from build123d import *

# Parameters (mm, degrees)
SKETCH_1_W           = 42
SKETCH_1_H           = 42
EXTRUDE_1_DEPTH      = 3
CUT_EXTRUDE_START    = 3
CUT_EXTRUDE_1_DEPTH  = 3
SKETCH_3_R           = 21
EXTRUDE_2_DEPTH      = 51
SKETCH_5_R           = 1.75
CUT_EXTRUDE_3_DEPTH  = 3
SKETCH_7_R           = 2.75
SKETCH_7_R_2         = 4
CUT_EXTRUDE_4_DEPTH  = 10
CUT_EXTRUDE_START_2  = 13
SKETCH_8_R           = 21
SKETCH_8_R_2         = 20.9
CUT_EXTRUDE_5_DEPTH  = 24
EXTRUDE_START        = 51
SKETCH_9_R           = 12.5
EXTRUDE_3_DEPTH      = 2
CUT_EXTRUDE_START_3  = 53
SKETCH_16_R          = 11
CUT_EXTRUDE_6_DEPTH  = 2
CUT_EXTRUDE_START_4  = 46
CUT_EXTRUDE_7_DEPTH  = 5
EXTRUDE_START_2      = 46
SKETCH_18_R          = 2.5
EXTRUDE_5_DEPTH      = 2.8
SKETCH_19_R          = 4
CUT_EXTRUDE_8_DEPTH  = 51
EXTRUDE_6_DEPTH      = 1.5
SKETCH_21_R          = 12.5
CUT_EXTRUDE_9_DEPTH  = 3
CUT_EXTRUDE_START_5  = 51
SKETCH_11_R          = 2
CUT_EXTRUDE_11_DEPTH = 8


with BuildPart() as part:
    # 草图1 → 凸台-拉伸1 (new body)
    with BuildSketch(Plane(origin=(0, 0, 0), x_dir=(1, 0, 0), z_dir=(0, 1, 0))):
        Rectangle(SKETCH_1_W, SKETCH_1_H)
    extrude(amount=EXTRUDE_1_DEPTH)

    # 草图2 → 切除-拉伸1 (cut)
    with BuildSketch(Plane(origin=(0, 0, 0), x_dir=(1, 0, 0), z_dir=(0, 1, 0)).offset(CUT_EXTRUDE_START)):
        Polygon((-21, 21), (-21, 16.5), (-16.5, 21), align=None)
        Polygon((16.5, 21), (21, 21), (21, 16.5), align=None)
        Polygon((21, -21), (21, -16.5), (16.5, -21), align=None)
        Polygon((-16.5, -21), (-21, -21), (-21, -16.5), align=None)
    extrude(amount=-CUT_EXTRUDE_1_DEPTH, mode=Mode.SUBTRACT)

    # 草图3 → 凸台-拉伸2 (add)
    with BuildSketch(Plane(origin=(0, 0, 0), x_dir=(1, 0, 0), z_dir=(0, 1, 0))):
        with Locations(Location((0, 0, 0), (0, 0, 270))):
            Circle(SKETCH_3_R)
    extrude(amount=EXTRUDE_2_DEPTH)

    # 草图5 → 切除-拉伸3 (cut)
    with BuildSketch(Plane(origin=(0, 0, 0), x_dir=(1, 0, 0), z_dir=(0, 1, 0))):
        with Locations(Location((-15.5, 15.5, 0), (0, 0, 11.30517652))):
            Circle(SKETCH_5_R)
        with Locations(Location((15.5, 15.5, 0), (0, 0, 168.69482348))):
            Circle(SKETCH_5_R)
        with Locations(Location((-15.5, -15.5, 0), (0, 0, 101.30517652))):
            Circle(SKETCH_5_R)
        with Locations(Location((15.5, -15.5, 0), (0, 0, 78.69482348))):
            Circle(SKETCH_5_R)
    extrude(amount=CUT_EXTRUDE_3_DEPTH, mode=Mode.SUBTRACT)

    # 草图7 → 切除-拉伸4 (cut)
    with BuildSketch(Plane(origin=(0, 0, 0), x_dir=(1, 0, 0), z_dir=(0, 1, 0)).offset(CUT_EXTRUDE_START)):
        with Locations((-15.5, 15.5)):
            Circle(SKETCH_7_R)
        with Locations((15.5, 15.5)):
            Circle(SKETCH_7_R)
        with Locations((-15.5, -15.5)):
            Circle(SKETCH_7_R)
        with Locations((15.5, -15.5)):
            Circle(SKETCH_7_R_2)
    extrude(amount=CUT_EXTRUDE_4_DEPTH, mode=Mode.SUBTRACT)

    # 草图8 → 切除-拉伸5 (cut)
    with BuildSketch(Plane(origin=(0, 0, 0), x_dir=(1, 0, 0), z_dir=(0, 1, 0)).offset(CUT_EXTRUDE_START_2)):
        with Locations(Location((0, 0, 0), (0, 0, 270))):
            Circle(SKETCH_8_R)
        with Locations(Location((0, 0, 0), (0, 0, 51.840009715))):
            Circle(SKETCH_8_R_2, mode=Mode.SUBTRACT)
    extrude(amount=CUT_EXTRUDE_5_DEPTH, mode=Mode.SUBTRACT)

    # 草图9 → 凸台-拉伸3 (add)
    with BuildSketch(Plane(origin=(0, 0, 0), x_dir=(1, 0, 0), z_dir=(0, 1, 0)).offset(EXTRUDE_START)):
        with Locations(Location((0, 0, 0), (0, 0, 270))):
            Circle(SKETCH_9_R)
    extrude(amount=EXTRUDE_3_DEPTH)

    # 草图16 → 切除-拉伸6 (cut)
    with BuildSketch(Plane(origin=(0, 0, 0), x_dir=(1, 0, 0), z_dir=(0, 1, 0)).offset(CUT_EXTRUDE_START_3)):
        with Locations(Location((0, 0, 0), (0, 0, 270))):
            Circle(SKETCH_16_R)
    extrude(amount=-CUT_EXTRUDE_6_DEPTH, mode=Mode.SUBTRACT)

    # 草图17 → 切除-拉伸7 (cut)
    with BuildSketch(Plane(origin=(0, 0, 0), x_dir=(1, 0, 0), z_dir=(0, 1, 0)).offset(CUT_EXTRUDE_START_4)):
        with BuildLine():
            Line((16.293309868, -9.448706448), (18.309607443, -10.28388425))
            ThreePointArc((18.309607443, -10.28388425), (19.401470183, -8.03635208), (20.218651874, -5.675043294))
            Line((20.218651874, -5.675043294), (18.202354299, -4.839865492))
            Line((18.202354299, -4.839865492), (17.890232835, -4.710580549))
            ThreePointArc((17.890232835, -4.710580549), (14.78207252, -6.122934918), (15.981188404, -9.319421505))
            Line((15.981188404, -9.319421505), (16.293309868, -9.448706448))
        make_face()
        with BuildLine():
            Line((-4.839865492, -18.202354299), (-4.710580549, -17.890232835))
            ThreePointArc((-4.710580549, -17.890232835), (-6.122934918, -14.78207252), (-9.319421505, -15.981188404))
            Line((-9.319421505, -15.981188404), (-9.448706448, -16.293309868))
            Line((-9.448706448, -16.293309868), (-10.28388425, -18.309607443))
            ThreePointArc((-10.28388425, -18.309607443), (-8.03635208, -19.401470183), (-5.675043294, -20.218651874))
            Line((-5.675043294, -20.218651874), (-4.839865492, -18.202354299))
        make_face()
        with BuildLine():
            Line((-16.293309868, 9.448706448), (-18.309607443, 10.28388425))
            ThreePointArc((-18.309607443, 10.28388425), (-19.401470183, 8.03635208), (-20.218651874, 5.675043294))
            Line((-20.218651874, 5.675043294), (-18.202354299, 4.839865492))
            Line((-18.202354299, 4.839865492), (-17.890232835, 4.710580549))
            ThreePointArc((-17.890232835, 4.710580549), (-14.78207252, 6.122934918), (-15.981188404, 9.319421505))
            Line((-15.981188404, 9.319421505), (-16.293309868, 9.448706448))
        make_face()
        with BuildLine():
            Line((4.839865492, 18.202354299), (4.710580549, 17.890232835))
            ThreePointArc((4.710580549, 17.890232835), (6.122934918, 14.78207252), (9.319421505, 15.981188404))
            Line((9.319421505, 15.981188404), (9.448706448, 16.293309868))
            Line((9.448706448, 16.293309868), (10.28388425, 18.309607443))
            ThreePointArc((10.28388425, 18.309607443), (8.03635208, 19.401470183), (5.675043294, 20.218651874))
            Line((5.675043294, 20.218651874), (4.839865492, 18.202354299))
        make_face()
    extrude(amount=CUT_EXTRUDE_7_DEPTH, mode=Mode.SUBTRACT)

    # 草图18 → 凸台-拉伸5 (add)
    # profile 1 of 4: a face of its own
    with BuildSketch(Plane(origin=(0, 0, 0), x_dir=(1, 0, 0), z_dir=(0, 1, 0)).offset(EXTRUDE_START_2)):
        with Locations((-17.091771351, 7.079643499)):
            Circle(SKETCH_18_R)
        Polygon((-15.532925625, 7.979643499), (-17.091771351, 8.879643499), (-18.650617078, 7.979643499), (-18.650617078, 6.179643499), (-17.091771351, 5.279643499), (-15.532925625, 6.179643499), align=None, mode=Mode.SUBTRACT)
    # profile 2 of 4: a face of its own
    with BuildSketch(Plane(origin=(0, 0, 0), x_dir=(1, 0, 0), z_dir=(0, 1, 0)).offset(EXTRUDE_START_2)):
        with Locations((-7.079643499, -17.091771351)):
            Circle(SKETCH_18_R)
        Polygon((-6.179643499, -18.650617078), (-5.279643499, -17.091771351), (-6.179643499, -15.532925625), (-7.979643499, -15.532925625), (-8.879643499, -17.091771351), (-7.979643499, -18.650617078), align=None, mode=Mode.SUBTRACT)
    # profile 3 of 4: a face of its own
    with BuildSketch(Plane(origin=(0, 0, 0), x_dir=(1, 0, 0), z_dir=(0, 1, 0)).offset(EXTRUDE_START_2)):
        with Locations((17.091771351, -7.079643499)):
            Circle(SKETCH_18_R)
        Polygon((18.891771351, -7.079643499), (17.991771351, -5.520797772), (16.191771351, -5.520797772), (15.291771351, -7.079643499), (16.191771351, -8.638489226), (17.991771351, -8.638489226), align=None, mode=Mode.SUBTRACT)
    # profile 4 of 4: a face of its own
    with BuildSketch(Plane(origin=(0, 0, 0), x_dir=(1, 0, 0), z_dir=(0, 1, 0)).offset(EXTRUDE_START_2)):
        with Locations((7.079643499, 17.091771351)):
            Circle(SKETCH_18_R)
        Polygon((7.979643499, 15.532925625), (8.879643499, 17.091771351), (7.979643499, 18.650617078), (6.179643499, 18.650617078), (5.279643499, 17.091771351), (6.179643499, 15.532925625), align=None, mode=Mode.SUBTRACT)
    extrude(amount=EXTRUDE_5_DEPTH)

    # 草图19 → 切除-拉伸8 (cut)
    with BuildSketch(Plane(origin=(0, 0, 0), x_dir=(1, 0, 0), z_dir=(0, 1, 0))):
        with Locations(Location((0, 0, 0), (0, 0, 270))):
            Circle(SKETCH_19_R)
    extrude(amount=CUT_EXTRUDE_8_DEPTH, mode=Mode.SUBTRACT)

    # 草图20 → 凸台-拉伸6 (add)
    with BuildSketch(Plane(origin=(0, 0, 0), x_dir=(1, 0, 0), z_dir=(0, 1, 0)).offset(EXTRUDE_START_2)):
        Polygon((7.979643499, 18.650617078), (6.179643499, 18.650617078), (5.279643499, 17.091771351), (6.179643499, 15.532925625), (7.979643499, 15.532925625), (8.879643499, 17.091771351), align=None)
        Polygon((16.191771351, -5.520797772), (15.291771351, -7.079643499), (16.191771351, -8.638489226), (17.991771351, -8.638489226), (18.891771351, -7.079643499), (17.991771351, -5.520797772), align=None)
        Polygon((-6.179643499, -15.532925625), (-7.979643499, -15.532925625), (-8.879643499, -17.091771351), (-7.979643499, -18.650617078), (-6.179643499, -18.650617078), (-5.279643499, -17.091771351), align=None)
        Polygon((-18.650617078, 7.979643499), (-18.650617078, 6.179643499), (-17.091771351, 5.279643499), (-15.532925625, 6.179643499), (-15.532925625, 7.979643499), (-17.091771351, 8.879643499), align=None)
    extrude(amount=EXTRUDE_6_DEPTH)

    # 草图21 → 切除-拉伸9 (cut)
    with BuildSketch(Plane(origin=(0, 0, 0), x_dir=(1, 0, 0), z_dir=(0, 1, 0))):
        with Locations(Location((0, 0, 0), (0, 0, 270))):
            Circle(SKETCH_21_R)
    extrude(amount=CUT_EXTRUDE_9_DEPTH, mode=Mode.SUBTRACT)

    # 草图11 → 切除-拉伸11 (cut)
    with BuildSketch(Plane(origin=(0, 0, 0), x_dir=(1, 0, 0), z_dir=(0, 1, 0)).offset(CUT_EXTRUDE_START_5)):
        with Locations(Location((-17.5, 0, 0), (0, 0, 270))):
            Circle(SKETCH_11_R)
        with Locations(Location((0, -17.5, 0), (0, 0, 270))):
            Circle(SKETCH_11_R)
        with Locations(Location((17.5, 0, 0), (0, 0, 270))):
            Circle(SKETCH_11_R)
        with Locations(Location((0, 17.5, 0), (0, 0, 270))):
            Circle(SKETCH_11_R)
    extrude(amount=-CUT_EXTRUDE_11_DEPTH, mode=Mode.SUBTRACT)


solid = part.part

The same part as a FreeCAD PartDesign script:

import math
import FreeCAD as App
import Part
import Sketcher
from FreeCAD import Vector
Q = App.Units.Quantity

doc = App.newDocument("Part")
body = doc.addObject("PartDesign::Body", "Body")

# Sketch on XZ plane
sketch1 = doc.addObject("Sketcher::SketchObject", "Sketch")
body.addObject(sketch1)
sketch1.AttachmentSupport = (doc.XZ_Plane, [""])
sketch1.MapMode = "FlatFace"
sketch1.addGeometry(Part.LineSegment(Vector(-21, -21, 0), Vector(-21, 21, 0)), False)
sketch1.addGeometry(Part.LineSegment(Vector(-21, 21, 0), Vector(21, 21, 0)), False)
sketch1.addGeometry(Part.LineSegment(Vector(21, 21, 0), Vector(21, -21, 0)), False)
sketch1.addGeometry(Part.LineSegment(Vector(21, -21, 0), Vector(-21, -21, 0)), False)
sketch1.addConstraint(Sketcher.Constraint("Coincident", 0, 2, 1, 1))
sketch1.addConstraint(Sketcher.Constraint("Coincident", 1, 2, 2, 1))
sketch1.addConstraint(Sketcher.Constraint("Coincident", 2, 2, 3, 1))
sketch1.addConstraint(Sketcher.Constraint("Coincident", 3, 2, 0, 1))
sketch1.addConstraint(Sketcher.Constraint("Vertical", 0))
sketch1.addConstraint(Sketcher.Constraint("Horizontal", 1))
sketch1.addConstraint(Sketcher.Constraint("Vertical", 2))
sketch1.addConstraint(Sketcher.Constraint("Horizontal", 3))
sketch1.addConstraint(Sketcher.Constraint("Symmetric", 0, 2, 2, 2, -1, 1))
sketch1.addConstraint(Sketcher.Constraint("Equal", 3, 0))
sketch1.addConstraint(Sketcher.Constraint("DistanceX", 1, 1, 1, 2, Q("42 mm")))
pad1 = doc.addObject("PartDesign::Pad", "Pad")
body.addObject(pad1)
pad1.Profile = sketch1
pad1.Length = 3
pad1.Reversed = True

# Sketch on XZ plane
sketch2 = doc.addObject("Sketcher::SketchObject", "Sketch001")
body.addObject(sketch2)
sketch2.AttachmentSupport = (doc.XZ_Plane, [""])
sketch2.MapMode = "FlatFace"
sketch2.AttachmentOffset = App.Placement(Vector(0, 0, -3), App.Rotation())
sketch2.addGeometry(Part.LineSegment(Vector(-21, -21, 0), Vector(-21, -16.5, 0)), False)
sketch2.addGeometry(Part.LineSegment(Vector(-21, -16.5, 0), Vector(-16.5, -21, 0)), False)
sketch2.addGeometry(Part.LineSegment(Vector(-16.5, -21, 0), Vector(-21, -21, 0)), False)
sketch2.addGeometry(Part.LineSegment(Vector(21, -21, 0), Vector(16.5, -21, 0)), False)
sketch2.addGeometry(Part.LineSegment(Vector(16.5, -21, 0), Vector(21, -16.5, 0)), False)
sketch2.addGeometry(Part.LineSegment(Vector(21, -16.5, 0), Vector(21, -21, 0)), False)
sketch2.addGeometry(Part.LineSegment(Vector(21, 21, 0), Vector(21, 16.5, 0)), False)
sketch2.addGeometry(Part.LineSegment(Vector(21, 16.5, 0), Vector(16.5, 21, 0)), False)
sketch2.addGeometry(Part.LineSegment(Vector(16.5, 21, 0), Vector(21, 21, 0)), False)
sketch2.addGeometry(Part.LineSegment(Vector(-21, 21, 0), Vector(-16.5, 21, 0)), False)
sketch2.addGeometry(Part.LineSegment(Vector(-16.5, 21, 0), Vector(-21, 16.5, 0)), False)
sketch2.addGeometry(Part.LineSegment(Vector(-21, 16.5, 0), Vector(-21, 21, 0)), False)
sketch2.addConstraint(Sketcher.Constraint("Coincident", 0, 2, 1, 1))
sketch2.addConstraint(Sketcher.Constraint("Coincident", 1, 2, 2, 1))
sketch2.addConstraint(Sketcher.Constraint("Coincident", 2, 2, 0, 1))
sketch2.addConstraint(Sketcher.Constraint("Coincident", 3, 2, 4, 1))
sketch2.addConstraint(Sketcher.Constraint("Coincident", 4, 2, 5, 1))
sketch2.addConstraint(Sketcher.Constraint("Coincident", 5, 2, 3, 1))
sketch2.addConstraint(Sketcher.Constraint("Coincident", 6, 2, 7, 1))
sketch2.addConstraint(Sketcher.Constraint("Coincident", 7, 2, 8, 1))
sketch2.addConstraint(Sketcher.Constraint("Coincident", 8, 2, 6, 1))
sketch2.addConstraint(Sketcher.Constraint("Coincident", 9, 2, 10, 1))
sketch2.addConstraint(Sketcher.Constraint("Coincident", 10, 2, 11, 1))
sketch2.addConstraint(Sketcher.Constraint("Coincident", 11, 2, 9, 1))
sketch2.addConstraint(Sketcher.Constraint("Vertical", 0))
sketch2.addConstraint(Sketcher.Constraint("Horizontal", 2))
sketch2.addConstraint(Sketcher.Constraint("Horizontal", 3))
sketch2.addConstraint(Sketcher.Constraint("Vertical", 5))
sketch2.addConstraint(Sketcher.Constraint("Vertical", 6))
sketch2.addConstraint(Sketcher.Constraint("Horizontal", 8))
sketch2.addConstraint(Sketcher.Constraint("Horizontal", 9))
sketch2.addConstraint(Sketcher.Constraint("Vertical", 11))
sketch2.addConstraint(Sketcher.Constraint("Symmetric", 0, 2, 6, 2, -1, 1))
sketch2.addConstraint(Sketcher.Constraint("Symmetric", 1, 2, 7, 2, -1, 1))
sketch2.addConstraint(Sketcher.Constraint("Symmetric", 3, 2, 9, 2, -1, 1))
sketch2.addConstraint(Sketcher.Constraint("Symmetric", 4, 2, 10, 2, -1, 1))
sketch2.addConstraint(Sketcher.Constraint("Symmetric", 1, 2, 3, 2, -2))
sketch2.addConstraint(Sketcher.Constraint("Symmetric", 0, 2, 4, 2, -2))
sketch2.addConstraint(Sketcher.Constraint("Perpendicular", 1, 4))
sketch2.addConstraint(Sketcher.Constraint("DistanceX", 2, 2, 2, 1, Q("4.5 mm")))
sketch2.addConstraint(Sketcher.Constraint("DistanceX", 0, 2, -1, 1, Q("21 mm")))
sketch2.addConstraint(Sketcher.Constraint("DistanceY", 1, 2, -1, 1, Q("21 mm")))
pocket1 = doc.addObject("PartDesign::Pocket", "Pocket")
body.addObject(pocket1)
pocket1.Profile = sketch2
pocket1.Length = 3
pocket1.Reversed = True

# Sketch on XZ plane
sketch3 = doc.addObject("Sketcher::SketchObject", "Sketch002")
body.addObject(sketch3)
sketch3.AttachmentSupport = (doc.XZ_Plane, [""])
sketch3.MapMode = "FlatFace"
sketch3.addGeometry(Part.Circle(Vector(0, 0, 0), Vector(0, 0, 1), 21), False)
sketch3.addConstraint(Sketcher.Constraint("Coincident", 0, 3, -1, 1))
sketch3.addConstraint(Sketcher.Constraint("Diameter", 0, Q("42 mm")))
pad2 = doc.addObject("PartDesign::Pad", "Pad001")
body.addObject(pad2)
pad2.Profile = sketch3
pad2.Length = 51
pad2.Reversed = True

# Sketch on XZ plane
sketch4 = doc.addObject("Sketcher::SketchObject", "Sketch003")
body.addObject(sketch4)
sketch4.AttachmentSupport = (doc.XZ_Plane, [""])
sketch4.MapMode = "FlatFace"
sketch4.addGeometry(Part.Circle(Vector(-15.5, -15.5, 0), Vector(0, 0, 1), 1.8), False)
sketch4.addGeometry(Part.Circle(Vector(15.5, -15.5, 0), Vector(0, 0, 1), 1.8), False)
sketch4.addGeometry(Part.Circle(Vector(-15.5, 15.5, 0), Vector(0, 0, 1), 1.8), False)
sketch4.addGeometry(Part.Circle(Vector(15.5, 15.5, 0), Vector(0, 0, 1), 1.8), False)
sketch4.addConstraint(Sketcher.Constraint("Equal", 0, 1))
sketch4.addConstraint(Sketcher.Constraint("Equal", 1, 2))
sketch4.addConstraint(Sketcher.Constraint("Equal", 2, 3))
sketch4.addConstraint(Sketcher.Constraint("Symmetric", 1, 3, 2, 3, -1, 1))
sketch4.addConstraint(Sketcher.Constraint("Symmetric", 0, 3, 3, 3, -1, 1))
sketch4.addConstraint(Sketcher.Constraint("Symmetric", 0, 3, 1, 3, -2))
sketch4.addConstraint(Sketcher.Constraint("Diameter", 0, Q("3.5 mm")))
sketch4.addConstraint(Sketcher.Constraint("DistanceX", 0, 3, 1, 3, Q("31 mm")))
sketch4.addConstraint(Sketcher.Constraint("DistanceY", 0, 3, 2, 3, Q("31 mm")))
pocket2 = doc.addObject("PartDesign::Pocket", "Pocket001")
body.addObject(pocket2)
pocket2.Profile = sketch4
pocket2.Length = 3

# Sketch on XZ plane
sketch5 = doc.addObject("Sketcher::SketchObject", "Sketch004")
body.addObject(sketch5)
sketch5.AttachmentSupport = (doc.XZ_Plane, [""])
sketch5.MapMode = "FlatFace"
sketch5.AttachmentOffset = App.Placement(Vector(0, 0, -3), App.Rotation())
sketch5.addGeometry(Part.Circle(Vector(-15.5, -15.5, 0), Vector(0, 0, 1), 2.8), False)
sketch5.addGeometry(Part.Circle(Vector(15.5, -15.5, 0), Vector(0, 0, 1), 2.8), False)
sketch5.addGeometry(Part.Circle(Vector(-15.5, 15.5, 0), Vector(0, 0, 1), 2.8), False)
sketch5.addGeometry(Part.Circle(Vector(15.5, 15.5, 0), Vector(0, 0, 1), 4), False)
sketch5.addConstraint(Sketcher.Constraint("Equal", 0, 1))
sketch5.addConstraint(Sketcher.Constraint("Equal", 1, 2))
sketch5.addConstraint(Sketcher.Constraint("Symmetric", 1, 3, 2, 3, -1, 1))
sketch5.addConstraint(Sketcher.Constraint("Symmetric", 0, 3, 3, 3, -1, 1))
sketch5.addConstraint(Sketcher.Constraint("Symmetric", 0, 3, 1, 3, -2))
sketch5.addConstraint(Sketcher.Constraint("Diameter", 3, Q("8 mm")))
sketch5.addConstraint(Sketcher.Constraint("Diameter", 0, Q("5.5 mm")))
sketch5.addConstraint(Sketcher.Constraint("DistanceX", 0, 3, 1, 3, Q("31 mm")))
sketch5.addConstraint(Sketcher.Constraint("DistanceY", 0, 3, 2, 3, Q("31 mm")))
pocket3 = doc.addObject("PartDesign::Pocket", "Pocket002")
body.addObject(pocket3)
pocket3.Profile = sketch5
pocket3.Length = 10

# Sketch on XZ plane
sketch6 = doc.addObject("Sketcher::SketchObject", "Sketch005")
body.addObject(sketch6)
sketch6.AttachmentSupport = (doc.XZ_Plane, [""])
sketch6.MapMode = "FlatFace"
sketch6.AttachmentOffset = App.Placement(Vector(0, 0, -13), App.Rotation())
sketch6.addGeometry(Part.Circle(Vector(0, 0, 0), Vector(0, 0, 1), 21), False)
sketch6.addGeometry(Part.Circle(Vector(0, 0, 0), Vector(0, 0, 1), 21), False)
sketch6.addConstraint(Sketcher.Constraint("Coincident", 0, 3, -1, 1))
sketch6.addConstraint(Sketcher.Constraint("Coincident", 1, 3, -1, 1))
sketch6.addConstraint(Sketcher.Constraint("Diameter", 0, Q("42 mm")))
sketch6.addConstraint(Sketcher.Constraint("Diameter", 1, Q("41.8 mm")))
pocket4 = doc.addObject("PartDesign::Pocket", "Pocket003")
body.addObject(pocket4)
pocket4.Profile = sketch6
pocket4.Length = 24

# Sketch on XZ plane
sketch7 = doc.addObject("Sketcher::SketchObject", "Sketch006")
body.addObject(sketch7)
sketch7.AttachmentSupport = (doc.XZ_Plane, [""])
sketch7.MapMode = "FlatFace"
sketch7.AttachmentOffset = App.Placement(Vector(0, 0, -51), App.Rotation())
sketch7.addGeometry(Part.Circle(Vector(0, 0, 0), Vector(0, 0, 1), 12), False)
sketch7.addConstraint(Sketcher.Constraint("Coincident", 0, 3, -1, 1))
sketch7.addConstraint(Sketcher.Constraint("Diameter", 0, Q("25 mm")))
pad3 = doc.addObject("PartDesign::Pad", "Pad002")
body.addObject(pad3)
pad3.Profile = sketch7
pad3.Length = 2
pad3.Reversed = True

# Sketch on XZ plane
sketch8 = doc.addObject("Sketcher::SketchObject", "Sketch007")
body.addObject(sketch8)
sketch8.AttachmentSupport = (doc.XZ_Plane, [""])
sketch8.MapMode = "FlatFace"
sketch8.AttachmentOffset = App.Placement(Vector(0, 0, -53), App.Rotation())
sketch8.addGeometry(Part.Circle(Vector(0, 0, 0), Vector(0, 0, 1), 11), False)
sketch8.addConstraint(Sketcher.Constraint("Coincident", 0, 3, -1, 1))
sketch8.addConstraint(Sketcher.Constraint("Diameter", 0, Q("22 mm")))
pocket5 = doc.addObject("PartDesign::Pocket", "Pocket004")
body.addObject(pocket5)
pocket5.Profile = sketch8
pocket5.Length = 2
pocket5.Reversed = True

# Sketch on XZ plane
sketch9 = doc.addObject("Sketcher::SketchObject", "Sketch008")
body.addObject(sketch9)
sketch9.AttachmentSupport = (doc.XZ_Plane, [""])
sketch9.MapMode = "FlatFace"
sketch9.AttachmentOffset = App.Placement(Vector(0, 0, -46), App.Rotation())
sketch9.addGeometry(Part.LineSegment(Vector(16.29, 9.45, 0), Vector(18.31, 10.28, 0)), False)
sketch9.addGeometry(Part.ArcOfCircle(Part.Circle(Vector(0, 0, 0), Vector(0, 0, 1), 21), math.radians(15.68), math.radians(29.32)), False)
sketch9.addGeometry(Part.LineSegment(Vector(20.22, 5.68, 0), Vector(18.2, 4.84, 0)), False)
sketch9.addGeometry(Part.LineSegment(Vector(18.2, 4.84, 0), Vector(17.89, 4.71, 0)), False)
sketch9.addGeometry(Part.ArcOfCircle(Part.Circle(Vector(17.09, 7.08, 0), Vector(0, 0, 1), 2.5), math.radians(116), math.radians(289)), False)
sketch9.addGeometry(Part.LineSegment(Vector(15.98, 9.32, 0), Vector(16.29, 9.45, 0)), False)
sketch9.addGeometry(Part.LineSegment(Vector(-4.84, 18.2, 0), Vector(-4.71, 17.89, 0)), False)
sketch9.addGeometry(Part.ArcOfCircle(Part.Circle(Vector(-7.08, 17.09, 0), Vector(0, 0, 1), 2.5), math.radians(-154), math.radians(19)), False)
sketch9.addGeometry(Part.LineSegment(Vector(-9.32, 15.98, 0), Vector(-9.45, 16.29, 0)), False)
sketch9.addGeometry(Part.LineSegment(Vector(-9.45, 16.29, 0), Vector(-10.28, 18.31, 0)), False)
sketch9.addGeometry(Part.ArcOfCircle(Part.Circle(Vector(0, 0, 0), Vector(0, 0, 1), 21), math.radians(105.68), math.radians(119.32)), False)
sketch9.addGeometry(Part.LineSegment(Vector(-5.68, 20.22, 0), Vector(-4.84, 18.2, 0)), False)
sketch9.addGeometry(Part.LineSegment(Vector(-16.29, -9.45, 0), Vector(-18.31, -10.28, 0)), False)
sketch9.addGeometry(Part.ArcOfCircle(Part.Circle(Vector(0, 0, 0), Vector(0, 0, 1), 21), math.radians(-164.32), math.radians(-150.68)), False)
sketch9.addGeometry(Part.LineSegment(Vector(-20.22, -5.68, 0), Vector(-18.2, -4.84, 0)), False)
sketch9.addGeometry(Part.LineSegment(Vector(-18.2, -4.84, 0), Vector(-17.89, -4.71, 0)), False)
sketch9.addGeometry(Part.ArcOfCircle(Part.Circle(Vector(-17.09, -7.08, 0), Vector(0, 0, 1), 2.5), math.radians(-64), math.radians(109)), False)
sketch9.addGeometry(Part.LineSegment(Vector(-15.98, -9.32, 0), Vector(-16.29, -9.45, 0)), False)
sketch9.addGeometry(Part.LineSegment(Vector(4.84, -18.2, 0), Vector(4.71, -17.89, 0)), False)
sketch9.addGeometry(Part.ArcOfCircle(Part.Circle(Vector(7.08, -17.09, 0), Vector(0, 0, 1), 2.5), math.radians(26), math.radians(199)), False)
sketch9.addGeometry(Part.LineSegment(Vector(9.32, -15.98, 0), Vector(9.45, -16.29, 0)), False)
sketch9.addGeometry(Part.LineSegment(Vector(9.45, -16.29, 0), Vector(10.28, -18.31, 0)), False)
sketch9.addGeometry(Part.ArcOfCircle(Part.Circle(Vector(0, 0, 0), Vector(0, 0, 1), 21), math.radians(-74.32), math.radians(-60.68)), False)
sketch9.addGeometry(Part.LineSegment(Vector(5.68, -20.22, 0), Vector(4.84, -18.2, 0)), False)
sketch9.addConstraint(Sketcher.Constraint("Coincident", 0, 2, 1, 2))
sketch9.addConstraint(Sketcher.Constraint("Coincident", 1, 1, 2, 1))
sketch9.addConstraint(Sketcher.Constraint("Coincident", 2, 2, 3, 1))
sketch9.addConstraint(Sketcher.Constraint("Coincident", 3, 2, 4, 2))
sketch9.addConstraint(Sketcher.Constraint("Coincident", 4, 1, 5, 1))
sketch9.addConstraint(Sketcher.Constraint("Coincident", 5, 2, 0, 1))
sketch9.addConstraint(Sketcher.Constraint("Coincident", 6, 2, 7, 2))
sketch9.addConstraint(Sketcher.Constraint("Coincident", 7, 1, 8, 1))
sketch9.addConstraint(Sketcher.Constraint("Coincident", 8, 2, 9, 1))
sketch9.addConstraint(Sketcher.Constraint("Coincident", 9, 2, 10, 2))
sketch9.addConstraint(Sketcher.Constraint("Coincident", 10, 1, 11, 1))
sketch9.addConstraint(Sketcher.Constraint("Coincident", 11, 2, 6, 1))
sketch9.addConstraint(Sketcher.Constraint("Coincident", 12, 2, 13, 2))
sketch9.addConstraint(Sketcher.Constraint("Coincident", 13, 1, 14, 1))
sketch9.addConstraint(Sketcher.Constraint("Coincident", 14, 2, 15, 1))
sketch9.addConstraint(Sketcher.Constraint("Coincident", 15, 2, 16, 2))
sketch9.addConstraint(Sketcher.Constraint("Coincident", 16, 1, 17, 1))
sketch9.addConstraint(Sketcher.Constraint("Coincident", 17, 2, 12, 1))
sketch9.addConstraint(Sketcher.Constraint("Coincident", 18, 2, 19, 2))
sketch9.addConstraint(Sketcher.Constraint("Coincident", 19, 1, 20, 1))
sketch9.addConstraint(Sketcher.Constraint("Coincident", 20, 2, 21, 1))
sketch9.addConstraint(Sketcher.Constraint("Coincident", 21, 2, 22, 2))
sketch9.addConstraint(Sketcher.Constraint("Coincident", 22, 1, 23, 1))
sketch9.addConstraint(Sketcher.Constraint("Coincident", 23, 2, 18, 1))
sketch9.addConstraint(Sketcher.Constraint("Coincident", 1, 3, -1, 1))
sketch9.addConstraint(Sketcher.Constraint("Coincident", 10, 3, -1, 1))
sketch9.addConstraint(Sketcher.Constraint("Coincident", 13, 3, -1, 1))
sketch9.addConstraint(Sketcher.Constraint("Coincident", 22, 3, -1, 1))
sketch9.addConstraint(Sketcher.Constraint("Equal", 4, 7))
sketch9.addConstraint(Sketcher.Constraint("Equal", 1, 10))
sketch9.addConstraint(Sketcher.Constraint("Equal", 10, 13))
sketch9.addConstraint(Sketcher.Constraint("Equal", 7, 16))
sketch9.addConstraint(Sketcher.Constraint("Equal", 16, 19))
sketch9.addConstraint(Sketcher.Constraint("Equal", 13, 22))
sketch9.addConstraint(Sketcher.Constraint("Symmetric", 4, 3, 16, 3, -1, 1))
sketch9.addConstraint(Sketcher.Constraint("Symmetric", 7, 3, 19, 3, -1, 1))
sketch9.addConstraint(Sketcher.Constraint("Symmetric", 2, 2, 14, 2, -1, 1))
sketch9.addConstraint(Sketcher.Constraint("Symmetric", 5, 2, 17, 2, -1, 1))
sketch9.addConstraint(Sketcher.Constraint("Symmetric", 8, 2, 20, 2, -1, 1))
sketch9.addConstraint(Sketcher.Constraint("Symmetric", 11, 2, 23, 2, -1, 1))
sketch9.addConstraint(Sketcher.Constraint("Parallel", 0, 2))
sketch9.addConstraint(Sketcher.Constraint("Parallel", 2, 3))
sketch9.addConstraint(Sketcher.Constraint("Parallel", 3, 5))
sketch9.addConstraint(Sketcher.Constraint("Perpendicular", 5, 6))
sketch9.addConstraint(Sketcher.Constraint("Parallel", 6, 8))
sketch9.addConstraint(Sketcher.Constraint("Parallel", 8, 9))
sketch9.addConstraint(Sketcher.Constraint("Parallel", 9, 11))
sketch9.addConstraint(Sketcher.Constraint("Perpendicular", 11, 12))
sketch9.addConstraint(Sketcher.Constraint("Parallel", 12, 14))
sketch9.addConstraint(Sketcher.Constraint("Parallel", 14, 15))
sketch9.addConstraint(Sketcher.Constraint("Parallel", 15, 17))
sketch9.addConstraint(Sketcher.Constraint("Perpendicular", 17, 18))
sketch9.addConstraint(Sketcher.Constraint("Parallel", 18, 20))
sketch9.addConstraint(Sketcher.Constraint("Parallel", 20, 21))
sketch9.addConstraint(Sketcher.Constraint("Parallel", 21, 23))
sketch9.addConstraint(Sketcher.Constraint("Equal", 0, 2))
sketch9.addConstraint(Sketcher.Constraint("Equal", 3, 5))
sketch9.addConstraint(Sketcher.Constraint("Equal", 5, 6))
sketch9.addConstraint(Sketcher.Constraint("Equal", 6, 8))
sketch9.addConstraint(Sketcher.Constraint("Equal", 2, 9))
sketch9.addConstraint(Sketcher.Constraint("Equal", 9, 11))
sketch9.addConstraint(Sketcher.Constraint("Radius", 1, Q("21 mm")))
sketch9.addConstraint(Sketcher.Constraint("Radius", 4, Q("2.5 mm")))
sketch9.addConstraint(Sketcher.Constraint("Angle", 0, Q("22.5 deg")))
sketch9.addConstraint(Sketcher.Constraint("DistanceY", 1, 1, 4, 3, Q("1.4046 mm")))
sketch9.addConstraint(Sketcher.Constraint("DistanceX", 7, 3, 10, 1, Q("1.4046 mm")))
sketch9.addConstraint(Sketcher.Constraint("DistanceX", -1, 1, 4, 3, Q("17.091771 mm")))
sketch9.addConstraint(Sketcher.Constraint("DistanceY", -1, 1, 7, 3, Q("17.091771 mm")))
sketch9.addConstraint(Sketcher.Constraint("DistanceX", -1, 1, 1, 1, Q("20.218652 mm")))
sketch9.addConstraint(Sketcher.Constraint("DistanceX", -1, 1, 5, 2, Q("16.29331 mm")))
pocket6 = doc.addObject("PartDesign::Pocket", "Pocket005")
body.addObject(pocket6)
pocket6.Profile = sketch9
pocket6.Length = 5

# Sketch on XZ plane
sketch10 = doc.addObject("Sketcher::SketchObject", "Sketch009")
body.addObject(sketch10)
sketch10.AttachmentSupport = (doc.XZ_Plane, [""])
sketch10.MapMode = "FlatFace"
sketch10.AttachmentOffset = App.Placement(Vector(0, 0, -46), App.Rotation())
sketch10.addGeometry(Part.Circle(Vector(-17.1, -7.1, 0), Vector(0, 0, 1), 2.5), False)
sketch10.addGeometry(Part.LineSegment(Vector(-17.1, -8.9, 0), Vector(-15.5, -8, 0)), False)
sketch10.addGeometry(Part.LineSegment(Vector(-15.5, -8, 0), Vector(-15.5, -6.2, 0)), False)
sketch10.addGeometry(Part.LineSegment(Vector(-15.5, -6.2, 0), Vector(-17.1, -5.3, 0)), False)
sketch10.addGeometry(Part.LineSegment(Vector(-17.1, -5.3, 0), Vector(-18.7, -6.2, 0)), False)
sketch10.addGeometry(Part.LineSegment(Vector(-18.7, -6.2, 0), Vector(-18.7, -8, 0)), False)
sketch10.addGeometry(Part.LineSegment(Vector(-18.7, -8, 0), Vector(-17.1, -8.9, 0)), False)
sketch10.addGeometry(Part.Circle(Vector(-7.1, 17.1, 0), Vector(0, 0, 1), 2.5), False)
sketch10.addGeometry(Part.LineSegment(Vector(-5.3, 17.1, 0), Vector(-6.2, 18.7, 0)), False)
sketch10.addGeometry(Part.LineSegment(Vector(-6.2, 18.7, 0), Vector(-8, 18.7, 0)), False)
sketch10.addGeometry(Part.LineSegment(Vector(-8, 18.7, 0), Vector(-8.9, 17.1, 0)), False)
sketch10.addGeometry(Part.LineSegment(Vector(-8.9, 17.1, 0), Vector(-8, 15.5, 0)), False)
sketch10.addGeometry(Part.LineSegment(Vector(-8, 15.5, 0), Vector(-6.2, 15.5, 0)), False)
sketch10.addGeometry(Part.LineSegment(Vector(-6.2, 15.5, 0), Vector(-5.3, 17.1, 0)), False)
sketch10.addGeometry(Part.Circle(Vector(17.1, 7.1, 0), Vector(0, 0, 1), 2.5), False)
sketch10.addGeometry(Part.LineSegment(Vector(18, 5.5, 0), Vector(18.9, 7.1, 0)), False)
sketch10.addGeometry(Part.LineSegment(Vector(18.9, 7.1, 0), Vector(18, 8.6, 0)), False)
sketch10.addGeometry(Part.LineSegment(Vector(18, 8.6, 0), Vector(16.2, 8.6, 0)), False)
sketch10.addGeometry(Part.LineSegment(Vector(16.2, 8.6, 0), Vector(15.3, 7.1, 0)), False)
sketch10.addGeometry(Part.LineSegment(Vector(15.3, 7.1, 0), Vector(16.2, 5.5, 0)), False)
sketch10.addGeometry(Part.LineSegment(Vector(16.2, 5.5, 0), Vector(18, 5.5, 0)), False)
sketch10.addGeometry(Part.Circle(Vector(7.1, -17.1, 0), Vector(0, 0, 1), 2.5), False)
sketch10.addGeometry(Part.LineSegment(Vector(8.9, -17.1, 0), Vector(8, -15.5, 0)), False)
sketch10.addGeometry(Part.LineSegment(Vector(8, -15.5, 0), Vector(6.2, -15.5, 0)), False)
sketch10.addGeometry(Part.LineSegment(Vector(6.2, -15.5, 0), Vector(5.3, -17.1, 0)), False)
sketch10.addGeometry(Part.LineSegment(Vector(5.3, -17.1, 0), Vector(6.2, -18.7, 0)), False)
sketch10.addGeometry(Part.LineSegment(Vector(6.2, -18.7, 0), Vector(8, -18.7, 0)), False)
sketch10.addGeometry(Part.LineSegment(Vector(8, -18.7, 0), Vector(8.9, -17.1, 0)), False)
sketch10.addConstraint(Sketcher.Constraint("Coincident", 1, 2, 2, 1))
sketch10.addConstraint(Sketcher.Constraint("Coincident", 2, 2, 3, 1))
sketch10.addConstraint(Sketcher.Constraint("Coincident", 3, 2, 4, 1))
sketch10.addConstraint(Sketcher.Constraint("Coincident", 4, 2, 5, 1))
sketch10.addConstraint(Sketcher.Constraint("Coincident", 5, 2, 6, 1))
sketch10.addConstraint(Sketcher.Constraint("Coincident", 6, 2, 1, 1))
sketch10.addConstraint(Sketcher.Constraint("Coincident", 8, 2, 9, 1))
sketch10.addConstraint(Sketcher.Constraint("Coincident", 9, 2, 10, 1))
sketch10.addConstraint(Sketcher.Constraint("Coincident", 10, 2, 11, 1))
sketch10.addConstraint(Sketcher.Constraint("Coincident", 11, 2, 12, 1))
sketch10.addConstraint(Sketcher.Constraint("Coincident", 12, 2, 13, 1))
sketch10.addConstraint(Sketcher.Constraint("Coincident", 13, 2, 8, 1))
sketch10.addConstraint(Sketcher.Constraint("Coincident", 15, 2, 16, 1))
sketch10.addConstraint(Sketcher.Constraint("Coincident", 16, 2, 17, 1))
sketch10.addConstraint(Sketcher.Constraint("Coincident", 17, 2, 18, 1))
sketch10.addConstraint(Sketcher.Constraint("Coincident", 18, 2, 19, 1))
sketch10.addConstraint(Sketcher.Constraint("Coincident", 19, 2, 20, 1))
sketch10.addConstraint(Sketcher.Constraint("Coincident", 20, 2, 15, 1))
sketch10.addConstraint(Sketcher.Constraint("Coincident", 22, 2, 23, 1))
sketch10.addConstraint(Sketcher.Constraint("Coincident", 23, 2, 24, 1))
sketch10.addConstraint(Sketcher.Constraint("Coincident", 24, 2, 25, 1))
sketch10.addConstraint(Sketcher.Constraint("Coincident", 25, 2, 26, 1))
sketch10.addConstraint(Sketcher.Constraint("Coincident", 26, 2, 27, 1))
sketch10.addConstraint(Sketcher.Constraint("Coincident", 27, 2, 22, 1))
sketch10.addConstraint(Sketcher.Constraint("Vertical", 2))
sketch10.addConstraint(Sketcher.Constraint("Vertical", 5))
sketch10.addConstraint(Sketcher.Constraint("Horizontal", 9))
sketch10.addConstraint(Sketcher.Constraint("Horizontal", 12))
sketch10.addConstraint(Sketcher.Constraint("Horizontal", 17))
sketch10.addConstraint(Sketcher.Constraint("Horizontal", 20))
sketch10.addConstraint(Sketcher.Constraint("Horizontal", 23))
sketch10.addConstraint(Sketcher.Constraint("Horizontal", 26))
sketch10.addConstraint(Sketcher.Constraint("Equal", 0, 7))
sketch10.addConstraint(Sketcher.Constraint("Equal", 7, 14))
sketch10.addConstraint(Sketcher.Constraint("Equal", 14, 21))
sketch10.addConstraint(Sketcher.Constraint("Symmetric", 0, 3, 14, 3, -1, 1))
sketch10.addConstraint(Sketcher.Constraint("Symmetric", 7, 3, 21, 3, -1, 1))
sketch10.addConstraint(Sketcher.Constraint("Symmetric", 11, 2, 22, 2, -1, 1))
sketch10.addConstraint(Sketcher.Constraint("Symmetric", 13, 2, 24, 2, -1, 1))
sketch10.addConstraint(Sketcher.Constraint("Symmetric", 8, 2, 25, 2, -1, 1))
sketch10.addConstraint(Sketcher.Constraint("Symmetric", 10, 2, 27, 2, -1, 1))
sketch10.addConstraint(Sketcher.Constraint("Parallel", 1, 4))
sketch10.addConstraint(Sketcher.Constraint("Parallel", 3, 6))
sketch10.addConstraint(Sketcher.Constraint("Perpendicular", 4, 8))
sketch10.addConstraint(Sketcher.Constraint("Perpendicular", 6, 10))
sketch10.addConstraint(Sketcher.Constraint("Parallel", 8, 11))
sketch10.addConstraint(Sketcher.Constraint("Parallel", 10, 13))
sketch10.addConstraint(Sketcher.Constraint("Parallel", 13, 15))
sketch10.addConstraint(Sketcher.Constraint("Parallel", 11, 16))
sketch10.addConstraint(Sketcher.Constraint("Parallel", 15, 18))
sketch10.addConstraint(Sketcher.Constraint("Parallel", 16, 19))
sketch10.addConstraint(Sketcher.Constraint("Parallel", 18, 24))
sketch10.addConstraint(Sketcher.Constraint("Parallel", 24, 27))
sketch10.addConstraint(Sketcher.Constraint("Horizontal", 2, 2, 4, 2))
sketch10.addConstraint(Sketcher.Constraint("Horizontal", 1, 2, 5, 2))
sketch10.addConstraint(Sketcher.Constraint("Horizontal", 7, 3, 10, 2))
sketch10.addConstraint(Sketcher.Constraint("Horizontal", 10, 2, 13, 2))
sketch10.addConstraint(Sketcher.Constraint("Horizontal", 14, 3, 15, 2))
sketch10.addConstraint(Sketcher.Constraint("Horizontal", 15, 2, 18, 2))
sketch10.addConstraint(Sketcher.Constraint("Vertical", 0, 3, 3, 2))
sketch10.addConstraint(Sketcher.Constraint("Vertical", 3, 2, 6, 2))
sketch10.addConstraint(Sketcher.Constraint("Vertical", 9, 2, 11, 2))
sketch10.addConstraint(Sketcher.Constraint("Vertical", 17, 2, 19, 2))
sketch10.addConstraint(Sketcher.Constraint("Equal", 12, 17))
sketch10.addConstraint(Sketcher.Constraint("Equal", 26, 2))
sketch10.addConstraint(Sketcher.Constraint("Equal", 6, 8))
sketch10.addConstraint(Sketcher.Constraint("Equal", 13, 15))
sketch10.addConstraint(Sketcher.Constraint("Diameter", 0, Q("5 mm")))
sketch10.addConstraint(Sketcher.Constraint("Angle", 1, Q("30 deg")))
sketch10.addConstraint(Sketcher.Constraint("DistanceX", 9, 2, 9, 1, Q("1.8 mm")))
sketch10.addConstraint(Sketcher.Constraint("Distance", 1, Q("1.8 mm")))
sketch10.addConstraint(Sketcher.Constraint("DistanceY", 1, 2, 0, 3, Q("0.9 mm")))
sketch10.addConstraint(Sketcher.Constraint("DistanceX", 7, 3, 8, 2, Q("0.9 mm")))
sketch10.addConstraint(Sketcher.Constraint("DistanceX", 14, 3, 15, 2, Q("1.8 mm")))
sketch10.addConstraint(Sketcher.Constraint("DistanceX", 0, 3, -1, 1, Q("17.091771 mm")))
sketch10.addConstraint(Sketcher.Constraint("DistanceY", -1, 1, 7, 3, Q("17.091771 mm")))
sketch10.addConstraint(Sketcher.Constraint("DistanceY", -1, 1, 16, 2, Q("8.638489 mm")))
sketch10.addConstraint(Sketcher.Constraint("DistanceX", 1, 2, 21, 3, Q("22.612569 mm")))
pad4 = doc.addObject("PartDesign::Pad", "Pad003")
body.addObject(pad4)
pad4.Profile = sketch10
pad4.Length = 2.8
pad4.Reversed = True

# Sketch on XZ plane
sketch11 = doc.addObject("Sketcher::SketchObject", "Sketch010")
body.addObject(sketch11)
sketch11.AttachmentSupport = (doc.XZ_Plane, [""])
sketch11.MapMode = "FlatFace"
sketch11.addGeometry(Part.Circle(Vector(0, 0, 0), Vector(0, 0, 1), 4), False)
sketch11.addConstraint(Sketcher.Constraint("Coincident", 0, 3, -1, 1))
sketch11.addConstraint(Sketcher.Constraint("Diameter", 0, Q("8 mm")))
pocket7 = doc.addObject("PartDesign::Pocket", "Pocket006")
body.addObject(pocket7)
pocket7.Profile = sketch11
pocket7.Length = 51

# Sketch on XZ plane
sketch12 = doc.addObject("Sketcher::SketchObject", "Sketch011")
body.addObject(sketch12)
sketch12.AttachmentSupport = (doc.XZ_Plane, [""])
sketch12.MapMode = "FlatFace"
sketch12.AttachmentOffset = App.Placement(Vector(0, 0, -46), App.Rotation())
sketch12.addGeometry(Part.LineSegment(Vector(8, -18.7, 0), Vector(6.2, -18.7, 0)), False)
sketch12.addGeometry(Part.LineSegment(Vector(6.2, -18.7, 0), Vector(5.3, -17.1, 0)), False)
sketch12.addGeometry(Part.LineSegment(Vector(5.3, -17.1, 0), Vector(6.2, -15.5, 0)), False)
sketch12.addGeometry(Part.LineSegment(Vector(6.2, -15.5, 0), Vector(8, -15.5, 0)), False)
sketch12.addGeometry(Part.LineSegment(Vector(8, -15.5, 0), Vector(8.9, -17.1, 0)), False)
sketch12.addGeometry(Part.LineSegment(Vector(8.9, -17.1, 0), Vector(8, -18.7, 0)), False)
sketch12.addGeometry(Part.LineSegment(Vector(16.2, 5.5, 0), Vector(15.3, 7.1, 0)), False)
sketch12.addGeometry(Part.LineSegment(Vector(15.3, 7.1, 0), Vector(16.2, 8.6, 0)), False)
sketch12.addGeometry(Part.LineSegment(Vector(16.2, 8.6, 0), Vector(18, 8.6, 0)), False)
sketch12.addGeometry(Part.LineSegment(Vector(18, 8.6, 0), Vector(18.9, 7.1, 0)), False)
sketch12.addGeometry(Part.LineSegment(Vector(18.9, 7.1, 0), Vector(18, 5.5, 0)), False)
sketch12.addGeometry(Part.LineSegment(Vector(18, 5.5, 0), Vector(16.2, 5.5, 0)), False)
sketch12.addGeometry(Part.LineSegment(Vector(-6.2, 15.5, 0), Vector(-8, 15.5, 0)), False)
sketch12.addGeometry(Part.LineSegment(Vector(-8, 15.5, 0), Vector(-8.9, 17.1, 0)), False)
sketch12.addGeometry(Part.LineSegment(Vector(-8.9, 17.1, 0), Vector(-8, 18.7, 0)), False)
sketch12.addGeometry(Part.LineSegment(Vector(-8, 18.7, 0), Vector(-6.2, 18.7, 0)), False)
sketch12.addGeometry(Part.LineSegment(Vector(-6.2, 18.7, 0), Vector(-5.3, 17.1, 0)), False)
sketch12.addGeometry(Part.LineSegment(Vector(-5.3, 17.1, 0), Vector(-6.2, 15.5, 0)), False)
sketch12.addGeometry(Part.LineSegment(Vector(-18.7, -8, 0), Vector(-18.7, -6.2, 0)), False)
sketch12.addGeometry(Part.LineSegment(Vector(-18.7, -6.2, 0), Vector(-17.1, -5.3, 0)), False)
sketch12.addGeometry(Part.LineSegment(Vector(-17.1, -5.3, 0), Vector(-15.5, -6.2, 0)), False)
sketch12.addGeometry(Part.LineSegment(Vector(-15.5, -6.2, 0), Vector(-15.5, -8, 0)), False)
sketch12.addGeometry(Part.LineSegment(Vector(-15.5, -8, 0), Vector(-17.1, -8.9, 0)), False)
sketch12.addGeometry(Part.LineSegment(Vector(-17.1, -8.9, 0), Vector(-18.7, -8, 0)), False)
sketch12.addConstraint(Sketcher.Constraint("Coincident", 0, 2, 1, 1))
sketch12.addConstraint(Sketcher.Constraint("Coincident", 1, 2, 2, 1))
sketch12.addConstraint(Sketcher.Constraint("Coincident", 2, 2, 3, 1))
sketch12.addConstraint(Sketcher.Constraint("Coincident", 3, 2, 4, 1))
sketch12.addConstraint(Sketcher.Constraint("Coincident", 4, 2, 5, 1))
sketch12.addConstraint(Sketcher.Constraint("Coincident", 5, 2, 0, 1))
sketch12.addConstraint(Sketcher.Constraint("Coincident", 6, 2, 7, 1))
sketch12.addConstraint(Sketcher.Constraint("Coincident", 7, 2, 8, 1))
sketch12.addConstraint(Sketcher.Constraint("Coincident", 8, 2, 9, 1))
sketch12.addConstraint(Sketcher.Constraint("Coincident", 9, 2, 10, 1))
sketch12.addConstraint(Sketcher.Constraint("Coincident", 10, 2, 11, 1))
sketch12.addConstraint(Sketcher.Constraint("Coincident", 11, 2, 6, 1))
sketch12.addConstraint(Sketcher.Constraint("Coincident", 12, 2, 13, 1))
sketch12.addConstraint(Sketcher.Constraint("Coincident", 13, 2, 14, 1))
sketch12.addConstraint(Sketcher.Constraint("Coincident", 14, 2, 15, 1))
sketch12.addConstraint(Sketcher.Constraint("Coincident", 15, 2, 16, 1))
sketch12.addConstraint(Sketcher.Constraint("Coincident", 16, 2, 17, 1))
sketch12.addConstraint(Sketcher.Constraint("Coincident", 17, 2, 12, 1))
sketch12.addConstraint(Sketcher.Constraint("Coincident", 18, 2, 19, 1))
sketch12.addConstraint(Sketcher.Constraint("Coincident", 19, 2, 20, 1))
sketch12.addConstraint(Sketcher.Constraint("Coincident", 20, 2, 21, 1))
sketch12.addConstraint(Sketcher.Constraint("Coincident", 21, 2, 22, 1))
sketch12.addConstraint(Sketcher.Constraint("Coincident", 22, 2, 23, 1))
sketch12.addConstraint(Sketcher.Constraint("Coincident", 23, 2, 18, 1))
sketch12.addConstraint(Sketcher.Constraint("Horizontal", 0))
sketch12.addConstraint(Sketcher.Constraint("Horizontal", 3))
sketch12.addConstraint(Sketcher.Constraint("Horizontal", 8))
sketch12.addConstraint(Sketcher.Constraint("Horizontal", 11))
sketch12.addConstraint(Sketcher.Constraint("Horizontal", 12))
sketch12.addConstraint(Sketcher.Constraint("Horizontal", 15))
sketch12.addConstraint(Sketcher.Constraint("Vertical", 18))
sketch12.addConstraint(Sketcher.Constraint("Vertical", 21))
sketch12.addConstraint(Sketcher.Constraint("Symmetric", 3, 2, 12, 2, -1, 1))
sketch12.addConstraint(Sketcher.Constraint("Symmetric", 4, 2, 13, 2, -1, 1))
sketch12.addConstraint(Sketcher.Constraint("Symmetric", 5, 2, 14, 2, -1, 1))
sketch12.addConstraint(Sketcher.Constraint("Symmetric", 1, 2, 16, 2, -1, 1))
sketch12.addConstraint(Sketcher.Constraint("Parallel", 1, 4))
sketch12.addConstraint(Sketcher.Constraint("Parallel", 2, 5))
sketch12.addConstraint(Sketcher.Constraint("Parallel", 4, 6))
sketch12.addConstraint(Sketcher.Constraint("Parallel", 5, 7))
sketch12.addConstraint(Sketcher.Constraint("Parallel", 6, 9))
sketch12.addConstraint(Sketcher.Constraint("Parallel", 7, 10))
sketch12.addConstraint(Sketcher.Constraint("Parallel", 13, 16))
sketch12.addConstraint(Sketcher.Constraint("Parallel", 14, 17))
sketch12.addConstraint(Sketcher.Constraint("Perpendicular", 16, 19))
sketch12.addConstraint(Sketcher.Constraint("Perpendicular", 17, 20))
sketch12.addConstraint(Sketcher.Constraint("Parallel", 19, 22))
sketch12.addConstraint(Sketcher.Constraint("Parallel", 20, 23))
sketch12.addConstraint(Sketcher.Constraint("Horizontal", 1, 2, 4, 2))
sketch12.addConstraint(Sketcher.Constraint("Horizontal", 6, 2, 9, 2))
sketch12.addConstraint(Sketcher.Constraint("Horizontal", 18, 2, 20, 2))
sketch12.addConstraint(Sketcher.Constraint("Horizontal", 21, 2, 23, 2))
sketch12.addConstraint(Sketcher.Constraint("Vertical", 0, 2, 2, 2))
sketch12.addConstraint(Sketcher.Constraint("Vertical", 3, 2, 5, 2))
sketch12.addConstraint(Sketcher.Constraint("Vertical", 8, 2, 10, 2))
sketch12.addConstraint(Sketcher.Constraint("Equal", 3, 8))
sketch12.addConstraint(Sketcher.Constraint("Equal", 15, 18))
sketch12.addConstraint(Sketcher.Constraint("Equal", 5, 6))
sketch12.addConstraint(Sketcher.Constraint("Equal", 17, 19))
sketch12.addConstraint(Sketcher.Constraint("Angle", 1, Q("120 deg")))
sketch12.addConstraint(Sketcher.Constraint("DistanceX", 0, 2, 0, 1, Q("1.8 mm")))
sketch12.addConstraint(Sketcher.Constraint("Distance", 1, Q("1.8 mm")))
sketch12.addConstraint(Sketcher.Constraint("DistanceY", 1, 2, -1, 1, Q("17.091771 mm")))
sketch12.addConstraint(Sketcher.Constraint("DistanceX", -1, 1, 6, 2, Q("15.291771 mm")))
sketch12.addConstraint(Sketcher.Constraint("DistanceY", -1, 1, 7, 2, Q("8.638489 mm")))
sketch12.addConstraint(Sketcher.Constraint("DistanceX", 19, 2, -1, 1, Q("17.091771 mm")))
sketch12.addConstraint(Sketcher.Constraint("DistanceY", 18, 2, 12, 2, Q("21.712569 mm")))
sketch12.addConstraint(Sketcher.Constraint("DistanceX", 18, 2, 1, 2, Q("23.930261 mm")))
pad5 = doc.addObject("PartDesign::Pad", "Pad004")
body.addObject(pad5)
pad5.Profile = sketch12
pad5.Length = 1.5
pad5.Reversed = True

# Sketch on XZ plane
sketch13 = doc.addObject("Sketcher::SketchObject", "Sketch012")
body.addObject(sketch13)
sketch13.AttachmentSupport = (doc.XZ_Plane, [""])
sketch13.MapMode = "FlatFace"
sketch13.addGeometry(Part.Circle(Vector(0, 0, 0), Vector(0, 0, 1), 12), False)
sketch13.addConstraint(Sketcher.Constraint("Coincident", 0, 3, -1, 1))
sketch13.addConstraint(Sketcher.Constraint("Diameter", 0, Q("25 mm")))
pocket8 = doc.addObject("PartDesign::Pocket", "Pocket007")
body.addObject(pocket8)
pocket8.Profile = sketch13
pocket8.Length = 3

# Sketch on XZ plane
sketch14 = doc.addObject("Sketcher::SketchObject", "Sketch013")
body.addObject(sketch14)
sketch14.AttachmentSupport = (doc.XZ_Plane, [""])
sketch14.MapMode = "FlatFace"
sketch14.AttachmentOffset = App.Placement(Vector(0, 0, -51), App.Rotation())
sketch14.addGeometry(Part.Circle(Vector(-17.5, 0, 0), Vector(0, 0, 1), 2), False)
sketch14.addGeometry(Part.Circle(Vector(0, 17.5, 0), Vector(0, 0, 1), 2), False)
sketch14.addGeometry(Part.Circle(Vector(17.5, 0, 0), Vector(0, 0, 1), 2), False)
sketch14.addGeometry(Part.Circle(Vector(0, -17.5, 0), Vector(0, 0, 1), 2), False)
sketch14.addConstraint(Sketcher.Constraint("Equal", 0, 1))
sketch14.addConstraint(Sketcher.Constraint("Equal", 1, 2))
sketch14.addConstraint(Sketcher.Constraint("Equal", 2, 3))
sketch14.addConstraint(Sketcher.Constraint("Symmetric", 0, 3, 2, 3, -1, 1))
sketch14.addConstraint(Sketcher.Constraint("Symmetric", 1, 3, 3, 3, -1, 1))
sketch14.addConstraint(Sketcher.Constraint("PointOnObject", 0, 3, -1))
sketch14.addConstraint(Sketcher.Constraint("PointOnObject", 1, 3, -2))
sketch14.addConstraint(Sketcher.Constraint("Diameter", 0, Q("4 mm")))
sketch14.addConstraint(Sketcher.Constraint("DistanceX", 0, 3, 2, 3, Q("35 mm")))
sketch14.addConstraint(Sketcher.Constraint("DistanceY", 3, 3, 1, 3, Q("35 mm")))
pocket9 = doc.addObject("PartDesign::Pocket", "Pocket008")
body.addObject(pocket9)
pocket9.Profile = sketch14
pocket9.Length = 8
pocket9.Reversed = True

doc.recompute()
